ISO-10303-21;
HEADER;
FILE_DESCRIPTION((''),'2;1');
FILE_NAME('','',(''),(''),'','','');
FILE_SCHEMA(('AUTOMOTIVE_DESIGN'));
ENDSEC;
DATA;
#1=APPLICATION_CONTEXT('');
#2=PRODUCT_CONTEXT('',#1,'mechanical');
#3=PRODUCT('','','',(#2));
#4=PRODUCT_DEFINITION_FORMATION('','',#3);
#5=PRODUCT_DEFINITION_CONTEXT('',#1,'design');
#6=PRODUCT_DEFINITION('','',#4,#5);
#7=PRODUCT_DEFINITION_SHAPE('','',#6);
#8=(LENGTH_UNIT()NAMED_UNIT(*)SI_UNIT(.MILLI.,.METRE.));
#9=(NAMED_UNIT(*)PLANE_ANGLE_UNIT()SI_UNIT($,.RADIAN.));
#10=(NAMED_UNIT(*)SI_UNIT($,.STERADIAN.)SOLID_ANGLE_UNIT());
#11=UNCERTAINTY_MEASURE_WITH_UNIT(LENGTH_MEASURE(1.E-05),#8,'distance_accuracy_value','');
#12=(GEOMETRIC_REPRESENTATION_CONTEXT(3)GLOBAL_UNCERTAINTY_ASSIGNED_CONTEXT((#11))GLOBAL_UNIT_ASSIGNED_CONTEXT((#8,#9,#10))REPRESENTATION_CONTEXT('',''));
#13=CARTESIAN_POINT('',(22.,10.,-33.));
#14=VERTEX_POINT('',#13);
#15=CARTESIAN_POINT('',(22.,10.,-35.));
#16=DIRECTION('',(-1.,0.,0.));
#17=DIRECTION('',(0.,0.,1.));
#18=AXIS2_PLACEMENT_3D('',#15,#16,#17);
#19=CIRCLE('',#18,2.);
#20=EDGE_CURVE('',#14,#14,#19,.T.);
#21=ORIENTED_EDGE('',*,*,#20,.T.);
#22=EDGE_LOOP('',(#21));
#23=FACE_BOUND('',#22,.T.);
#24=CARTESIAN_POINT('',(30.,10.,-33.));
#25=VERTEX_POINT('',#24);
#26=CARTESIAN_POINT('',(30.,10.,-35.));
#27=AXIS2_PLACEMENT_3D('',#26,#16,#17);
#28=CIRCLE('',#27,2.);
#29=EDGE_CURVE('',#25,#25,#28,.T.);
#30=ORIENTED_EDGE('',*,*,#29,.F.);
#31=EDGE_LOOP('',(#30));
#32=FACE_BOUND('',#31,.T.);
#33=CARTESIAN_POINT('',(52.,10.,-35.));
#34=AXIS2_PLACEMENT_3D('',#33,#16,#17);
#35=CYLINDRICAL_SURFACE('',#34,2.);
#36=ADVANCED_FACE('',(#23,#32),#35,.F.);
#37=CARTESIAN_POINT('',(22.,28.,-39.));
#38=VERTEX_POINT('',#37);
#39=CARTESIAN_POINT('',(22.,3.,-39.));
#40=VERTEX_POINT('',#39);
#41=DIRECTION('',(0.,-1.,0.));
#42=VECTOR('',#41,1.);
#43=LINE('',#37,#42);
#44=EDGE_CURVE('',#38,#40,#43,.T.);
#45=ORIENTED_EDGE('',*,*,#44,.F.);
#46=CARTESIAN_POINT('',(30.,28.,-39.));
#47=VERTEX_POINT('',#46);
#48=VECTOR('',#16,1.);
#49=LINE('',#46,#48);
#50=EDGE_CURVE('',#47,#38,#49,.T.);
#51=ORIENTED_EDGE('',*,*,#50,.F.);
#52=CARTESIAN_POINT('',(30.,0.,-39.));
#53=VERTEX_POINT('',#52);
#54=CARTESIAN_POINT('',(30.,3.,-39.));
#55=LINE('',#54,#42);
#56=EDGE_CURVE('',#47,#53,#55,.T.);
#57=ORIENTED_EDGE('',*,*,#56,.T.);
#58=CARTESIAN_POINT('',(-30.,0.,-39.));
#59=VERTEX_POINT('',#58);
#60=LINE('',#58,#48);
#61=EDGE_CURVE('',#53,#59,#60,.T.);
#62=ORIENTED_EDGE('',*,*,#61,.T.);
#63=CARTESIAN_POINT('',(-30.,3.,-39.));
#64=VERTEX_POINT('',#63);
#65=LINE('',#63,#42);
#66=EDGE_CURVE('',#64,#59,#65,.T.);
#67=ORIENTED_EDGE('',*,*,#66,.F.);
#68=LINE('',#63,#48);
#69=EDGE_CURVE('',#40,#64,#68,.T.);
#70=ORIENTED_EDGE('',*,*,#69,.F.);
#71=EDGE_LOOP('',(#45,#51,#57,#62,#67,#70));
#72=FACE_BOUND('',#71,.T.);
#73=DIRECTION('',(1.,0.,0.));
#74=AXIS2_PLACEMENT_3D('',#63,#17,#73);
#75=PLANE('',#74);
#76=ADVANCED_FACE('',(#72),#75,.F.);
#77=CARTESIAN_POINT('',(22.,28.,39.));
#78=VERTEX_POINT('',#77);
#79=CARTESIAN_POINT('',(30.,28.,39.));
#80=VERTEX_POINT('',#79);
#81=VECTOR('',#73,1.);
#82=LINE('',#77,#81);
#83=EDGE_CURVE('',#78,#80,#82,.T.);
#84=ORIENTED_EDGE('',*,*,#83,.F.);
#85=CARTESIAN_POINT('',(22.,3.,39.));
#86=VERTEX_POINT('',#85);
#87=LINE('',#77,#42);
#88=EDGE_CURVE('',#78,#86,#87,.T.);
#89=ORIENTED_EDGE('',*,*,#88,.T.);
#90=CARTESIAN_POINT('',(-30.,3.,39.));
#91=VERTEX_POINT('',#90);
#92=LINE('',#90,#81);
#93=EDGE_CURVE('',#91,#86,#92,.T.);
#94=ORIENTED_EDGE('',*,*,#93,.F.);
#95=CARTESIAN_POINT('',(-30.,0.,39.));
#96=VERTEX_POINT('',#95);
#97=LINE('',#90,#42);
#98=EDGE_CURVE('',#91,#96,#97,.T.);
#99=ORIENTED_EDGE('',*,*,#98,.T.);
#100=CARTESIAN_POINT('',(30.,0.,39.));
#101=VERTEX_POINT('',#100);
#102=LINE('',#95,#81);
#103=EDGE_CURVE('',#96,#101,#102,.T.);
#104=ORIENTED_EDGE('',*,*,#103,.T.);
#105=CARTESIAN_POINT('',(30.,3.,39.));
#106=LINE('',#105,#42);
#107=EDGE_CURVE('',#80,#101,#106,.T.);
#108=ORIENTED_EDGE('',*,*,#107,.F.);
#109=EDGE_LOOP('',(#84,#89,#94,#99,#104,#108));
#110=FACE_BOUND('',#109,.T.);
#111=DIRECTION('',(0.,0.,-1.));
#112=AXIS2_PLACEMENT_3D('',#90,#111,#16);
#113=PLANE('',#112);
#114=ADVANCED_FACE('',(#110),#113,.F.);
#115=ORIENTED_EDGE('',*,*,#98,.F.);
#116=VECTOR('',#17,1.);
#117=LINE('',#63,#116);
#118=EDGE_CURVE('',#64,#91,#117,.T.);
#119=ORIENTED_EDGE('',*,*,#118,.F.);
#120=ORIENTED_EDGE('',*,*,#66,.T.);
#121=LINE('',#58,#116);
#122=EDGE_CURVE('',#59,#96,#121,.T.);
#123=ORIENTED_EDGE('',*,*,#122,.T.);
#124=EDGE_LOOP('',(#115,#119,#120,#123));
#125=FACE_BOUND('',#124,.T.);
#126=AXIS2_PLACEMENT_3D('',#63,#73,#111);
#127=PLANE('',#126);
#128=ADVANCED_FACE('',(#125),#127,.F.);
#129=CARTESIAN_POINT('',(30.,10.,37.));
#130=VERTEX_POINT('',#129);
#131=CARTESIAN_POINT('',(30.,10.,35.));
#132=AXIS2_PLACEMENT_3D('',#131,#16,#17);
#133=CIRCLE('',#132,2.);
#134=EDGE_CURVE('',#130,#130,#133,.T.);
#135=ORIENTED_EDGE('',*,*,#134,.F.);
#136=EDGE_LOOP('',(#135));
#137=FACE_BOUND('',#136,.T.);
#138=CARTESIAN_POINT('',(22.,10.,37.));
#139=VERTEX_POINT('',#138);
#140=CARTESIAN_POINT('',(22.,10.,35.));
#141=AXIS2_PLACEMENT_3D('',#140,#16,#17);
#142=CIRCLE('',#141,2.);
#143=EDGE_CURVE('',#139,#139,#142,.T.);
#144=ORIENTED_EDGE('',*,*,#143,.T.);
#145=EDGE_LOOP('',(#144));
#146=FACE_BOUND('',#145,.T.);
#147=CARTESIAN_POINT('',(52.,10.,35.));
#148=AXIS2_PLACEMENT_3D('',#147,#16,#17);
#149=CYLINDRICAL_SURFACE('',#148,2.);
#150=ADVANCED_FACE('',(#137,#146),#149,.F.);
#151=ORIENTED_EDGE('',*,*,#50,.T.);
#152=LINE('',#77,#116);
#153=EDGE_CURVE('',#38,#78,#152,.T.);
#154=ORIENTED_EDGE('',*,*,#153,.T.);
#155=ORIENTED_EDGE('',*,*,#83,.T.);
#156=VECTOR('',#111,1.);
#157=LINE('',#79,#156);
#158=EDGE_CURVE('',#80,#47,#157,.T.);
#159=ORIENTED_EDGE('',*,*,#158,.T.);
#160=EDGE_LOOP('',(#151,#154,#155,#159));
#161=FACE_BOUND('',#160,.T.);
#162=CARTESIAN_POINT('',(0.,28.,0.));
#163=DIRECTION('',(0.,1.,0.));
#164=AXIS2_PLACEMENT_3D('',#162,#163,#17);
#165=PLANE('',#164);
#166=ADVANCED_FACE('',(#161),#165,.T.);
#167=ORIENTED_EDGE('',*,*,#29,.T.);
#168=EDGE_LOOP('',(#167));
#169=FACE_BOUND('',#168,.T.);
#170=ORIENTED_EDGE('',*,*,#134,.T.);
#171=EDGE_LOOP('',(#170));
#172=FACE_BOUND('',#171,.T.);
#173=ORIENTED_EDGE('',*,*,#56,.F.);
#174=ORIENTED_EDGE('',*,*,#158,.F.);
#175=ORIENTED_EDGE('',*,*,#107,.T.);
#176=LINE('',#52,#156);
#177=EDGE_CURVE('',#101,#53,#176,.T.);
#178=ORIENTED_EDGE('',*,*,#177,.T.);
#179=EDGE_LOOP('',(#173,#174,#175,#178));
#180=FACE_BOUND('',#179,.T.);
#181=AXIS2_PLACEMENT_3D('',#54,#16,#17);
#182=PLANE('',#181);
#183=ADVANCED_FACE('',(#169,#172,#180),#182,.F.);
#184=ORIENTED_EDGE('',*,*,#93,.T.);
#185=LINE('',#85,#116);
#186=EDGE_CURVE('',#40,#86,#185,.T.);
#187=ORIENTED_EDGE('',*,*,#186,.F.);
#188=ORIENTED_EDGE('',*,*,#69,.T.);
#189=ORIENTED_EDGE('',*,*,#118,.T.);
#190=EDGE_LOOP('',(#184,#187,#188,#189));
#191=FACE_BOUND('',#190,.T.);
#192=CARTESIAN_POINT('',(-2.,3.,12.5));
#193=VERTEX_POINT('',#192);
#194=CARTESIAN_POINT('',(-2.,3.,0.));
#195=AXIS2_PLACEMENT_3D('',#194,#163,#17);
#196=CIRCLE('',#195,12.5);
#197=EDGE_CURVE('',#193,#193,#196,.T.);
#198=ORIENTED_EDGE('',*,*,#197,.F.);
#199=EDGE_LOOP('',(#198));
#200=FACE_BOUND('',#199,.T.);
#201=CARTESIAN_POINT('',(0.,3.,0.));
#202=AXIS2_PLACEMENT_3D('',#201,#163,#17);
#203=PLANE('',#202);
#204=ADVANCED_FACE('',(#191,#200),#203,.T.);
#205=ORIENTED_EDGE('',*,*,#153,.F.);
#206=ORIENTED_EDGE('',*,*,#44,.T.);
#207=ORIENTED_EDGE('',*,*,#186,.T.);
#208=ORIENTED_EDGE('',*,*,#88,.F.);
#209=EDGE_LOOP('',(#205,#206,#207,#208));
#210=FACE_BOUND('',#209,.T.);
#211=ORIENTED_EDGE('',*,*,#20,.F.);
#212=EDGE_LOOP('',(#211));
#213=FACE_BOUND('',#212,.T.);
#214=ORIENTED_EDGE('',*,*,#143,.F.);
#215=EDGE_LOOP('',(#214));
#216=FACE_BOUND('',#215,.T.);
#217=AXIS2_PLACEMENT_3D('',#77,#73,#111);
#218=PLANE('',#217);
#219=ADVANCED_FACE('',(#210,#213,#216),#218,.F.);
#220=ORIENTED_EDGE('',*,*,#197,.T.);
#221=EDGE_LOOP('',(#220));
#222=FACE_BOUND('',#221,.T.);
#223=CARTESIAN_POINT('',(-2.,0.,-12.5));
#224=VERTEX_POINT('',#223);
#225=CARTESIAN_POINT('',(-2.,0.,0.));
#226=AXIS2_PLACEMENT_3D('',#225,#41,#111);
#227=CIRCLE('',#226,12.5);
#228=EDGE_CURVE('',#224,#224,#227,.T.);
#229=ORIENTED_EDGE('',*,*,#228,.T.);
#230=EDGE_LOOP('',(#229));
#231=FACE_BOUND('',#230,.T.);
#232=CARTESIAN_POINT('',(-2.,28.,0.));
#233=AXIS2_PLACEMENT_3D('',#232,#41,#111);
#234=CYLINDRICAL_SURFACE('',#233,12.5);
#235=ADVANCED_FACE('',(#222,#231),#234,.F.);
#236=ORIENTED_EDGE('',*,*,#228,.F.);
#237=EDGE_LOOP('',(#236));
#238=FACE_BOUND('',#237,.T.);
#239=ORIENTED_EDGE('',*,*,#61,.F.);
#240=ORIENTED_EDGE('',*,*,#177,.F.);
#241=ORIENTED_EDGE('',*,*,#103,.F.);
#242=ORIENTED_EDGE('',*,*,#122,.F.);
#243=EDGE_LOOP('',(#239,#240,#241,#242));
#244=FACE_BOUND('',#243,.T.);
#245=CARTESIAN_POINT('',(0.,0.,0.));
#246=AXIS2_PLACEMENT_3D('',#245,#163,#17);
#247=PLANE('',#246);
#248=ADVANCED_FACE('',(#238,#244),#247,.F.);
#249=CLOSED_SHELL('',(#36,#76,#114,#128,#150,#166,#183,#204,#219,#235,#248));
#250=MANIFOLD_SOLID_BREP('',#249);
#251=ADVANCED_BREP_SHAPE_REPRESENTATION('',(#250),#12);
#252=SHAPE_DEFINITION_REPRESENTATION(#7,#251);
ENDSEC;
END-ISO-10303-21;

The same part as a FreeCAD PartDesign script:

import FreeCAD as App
import Part
import Sketcher
from FreeCAD import Vector


def add_polygon(sketch, points):
    """Adds a closed chain of lines whose ends are joined by coincident constraints."""
    first, n = sketch.GeometryCount, len(points)
    for a, b in zip(points, points[1:] + points[:1]):
        sketch.addGeometry(Part.LineSegment(App.Vector(*a, 0), App.Vector(*b, 0)), False)
    for i in range(n):
        sketch.addConstraint(Sketcher.Constraint("Coincident", first + i, 2, first + (i + 1) % n, 1))

doc = App.newDocument("Part")
body = doc.addObject("PartDesign::Body", "Body")

sketch1 = doc.addObject("Sketcher::SketchObject", "Sketch")
body.addObject(sketch1)
sketch1.AttachmentSupport = (doc.XZ_Plane, [""])
sketch1.MapMode = "FlatFace"
add_polygon(sketch1, [(-30, -39), (-30, 39), (30, 39), (30, -39)])
sketch1.addConstraint([
    Sketcher.Constraint("Vertical", 0),
    Sketcher.Constraint("Horizontal", 1),
    Sketcher.Constraint("Vertical", 2),
    Sketcher.Constraint("Horizontal", 3),
    Sketcher.Constraint("Symmetric", 0, 2, 2, 2, -1, 1),
    Sketcher.Constraint("DistanceX", 1, 1, 1, 2, 60.0),
    Sketcher.Constraint("DistanceY", 0, 1, 0, 2, 78.0),
])
pad1 = doc.addObject("PartDesign::Pad", "Pad")
body.addObject(pad1)
pad1.Profile = sketch1
pad1.Length = 3
pad1.Reversed = True

sketch2 = doc.addObject("Sketcher::SketchObject", "Sketch001")
body.addObject(sketch2)
sketch2.AttachmentSupport = (doc.XZ_Plane, [""])
sketch2.MapMode = "FlatFace"
sketch2.AttachmentOffset = App.Placement(Vector(0, 0, -3), App.Rotation())
add_polygon(sketch2, [(22, -39), (22, 39), (30, 39), (30, -39)])
sketch2.addConstraint([
    Sketcher.Constraint("Vertical", 0),
    Sketcher.Constraint("Horizontal", 1),
    Sketcher.Constraint("Vertical", 2),
    Sketcher.Constraint("Horizontal", 3),
    Sketcher.Constraint("DistanceX", 1, 1, 1, 2, 8.0),
    Sketcher.Constraint("DistanceY", 0, 1, 0, 2, 78.0),
    Sketcher.Constraint("DistanceX", -1, 1, 0, 2, 22.0),
    Sketcher.Constraint("DistanceY", -1, 1, 0, 2, 39.0),
])
pad2 = doc.addObject("PartDesign::Pad", "Pad001")
body.addObject(pad2)
pad2.Profile = sketch2
pad2.Length = 25
pad2.Reversed = True

sketch3 = doc.addObject("Sketcher::SketchObject", "Sketch002")
body.addObject(sketch3)
sketch3.AttachmentSupport = (doc.YZ_Plane, [""])
sketch3.MapMode = "FlatFace"
sketch3.AttachmentOffset = App.Placement(Vector(0, 0, 22), App.Rotation())
sketch3.addGeometry([
    Part.Circle(Vector(10, 35, 0), Vector(0, 0, 1), 2),
    Part.Circle(Vector(10, -35, 0), Vector(0, 0, 1), 2),
], False)
sketch3.addConstraint([
    Sketcher.Constraint("Equal", 0, 1),
    Sketcher.Constraint("Symmetric", 0, 3, 1, 3, -1),
    Sketcher.Constraint("Diameter", 0, 4.0),
    Sketcher.Constraint("DistanceX", -1, 1, 0, 3, 10.0),
    Sketcher.Constraint("DistanceY", -1, 1, 0, 3, 35.0),
])
pocket1 = doc.addObject("PartDesign::Pocket", "Pocket")
body.addObject(pocket1)
pocket1.Profile = sketch3
pocket1.Length = 30
pocket1.Reversed = True

sketch4 = doc.addObject("Sketcher::SketchObject", "Sketch003")
body.addObject(sketch4)
sketch4.AttachmentSupport = (doc.XZ_Plane, [""])
sketch4.MapMode = "FlatFace"
sketch4.addGeometry(Part.Circle(Vector(-2, 0, 0), Vector(0, 0, 1), 12), False)
sketch4.addConstraint([
    Sketcher.Constraint("PointOnObject", 0, 3, -1),
    Sketcher.Constraint("Diameter", 0, 25.0),
    Sketcher.Constraint("DistanceX", 0, 3, -1, 1, 2.0),
])
pocket2 = doc.addObject("PartDesign::Pocket", "Pocket001")
body.addObject(pocket2)
pocket2.Profile = sketch4
pocket2.Type = "ThroughAll"

doc.recompute()
